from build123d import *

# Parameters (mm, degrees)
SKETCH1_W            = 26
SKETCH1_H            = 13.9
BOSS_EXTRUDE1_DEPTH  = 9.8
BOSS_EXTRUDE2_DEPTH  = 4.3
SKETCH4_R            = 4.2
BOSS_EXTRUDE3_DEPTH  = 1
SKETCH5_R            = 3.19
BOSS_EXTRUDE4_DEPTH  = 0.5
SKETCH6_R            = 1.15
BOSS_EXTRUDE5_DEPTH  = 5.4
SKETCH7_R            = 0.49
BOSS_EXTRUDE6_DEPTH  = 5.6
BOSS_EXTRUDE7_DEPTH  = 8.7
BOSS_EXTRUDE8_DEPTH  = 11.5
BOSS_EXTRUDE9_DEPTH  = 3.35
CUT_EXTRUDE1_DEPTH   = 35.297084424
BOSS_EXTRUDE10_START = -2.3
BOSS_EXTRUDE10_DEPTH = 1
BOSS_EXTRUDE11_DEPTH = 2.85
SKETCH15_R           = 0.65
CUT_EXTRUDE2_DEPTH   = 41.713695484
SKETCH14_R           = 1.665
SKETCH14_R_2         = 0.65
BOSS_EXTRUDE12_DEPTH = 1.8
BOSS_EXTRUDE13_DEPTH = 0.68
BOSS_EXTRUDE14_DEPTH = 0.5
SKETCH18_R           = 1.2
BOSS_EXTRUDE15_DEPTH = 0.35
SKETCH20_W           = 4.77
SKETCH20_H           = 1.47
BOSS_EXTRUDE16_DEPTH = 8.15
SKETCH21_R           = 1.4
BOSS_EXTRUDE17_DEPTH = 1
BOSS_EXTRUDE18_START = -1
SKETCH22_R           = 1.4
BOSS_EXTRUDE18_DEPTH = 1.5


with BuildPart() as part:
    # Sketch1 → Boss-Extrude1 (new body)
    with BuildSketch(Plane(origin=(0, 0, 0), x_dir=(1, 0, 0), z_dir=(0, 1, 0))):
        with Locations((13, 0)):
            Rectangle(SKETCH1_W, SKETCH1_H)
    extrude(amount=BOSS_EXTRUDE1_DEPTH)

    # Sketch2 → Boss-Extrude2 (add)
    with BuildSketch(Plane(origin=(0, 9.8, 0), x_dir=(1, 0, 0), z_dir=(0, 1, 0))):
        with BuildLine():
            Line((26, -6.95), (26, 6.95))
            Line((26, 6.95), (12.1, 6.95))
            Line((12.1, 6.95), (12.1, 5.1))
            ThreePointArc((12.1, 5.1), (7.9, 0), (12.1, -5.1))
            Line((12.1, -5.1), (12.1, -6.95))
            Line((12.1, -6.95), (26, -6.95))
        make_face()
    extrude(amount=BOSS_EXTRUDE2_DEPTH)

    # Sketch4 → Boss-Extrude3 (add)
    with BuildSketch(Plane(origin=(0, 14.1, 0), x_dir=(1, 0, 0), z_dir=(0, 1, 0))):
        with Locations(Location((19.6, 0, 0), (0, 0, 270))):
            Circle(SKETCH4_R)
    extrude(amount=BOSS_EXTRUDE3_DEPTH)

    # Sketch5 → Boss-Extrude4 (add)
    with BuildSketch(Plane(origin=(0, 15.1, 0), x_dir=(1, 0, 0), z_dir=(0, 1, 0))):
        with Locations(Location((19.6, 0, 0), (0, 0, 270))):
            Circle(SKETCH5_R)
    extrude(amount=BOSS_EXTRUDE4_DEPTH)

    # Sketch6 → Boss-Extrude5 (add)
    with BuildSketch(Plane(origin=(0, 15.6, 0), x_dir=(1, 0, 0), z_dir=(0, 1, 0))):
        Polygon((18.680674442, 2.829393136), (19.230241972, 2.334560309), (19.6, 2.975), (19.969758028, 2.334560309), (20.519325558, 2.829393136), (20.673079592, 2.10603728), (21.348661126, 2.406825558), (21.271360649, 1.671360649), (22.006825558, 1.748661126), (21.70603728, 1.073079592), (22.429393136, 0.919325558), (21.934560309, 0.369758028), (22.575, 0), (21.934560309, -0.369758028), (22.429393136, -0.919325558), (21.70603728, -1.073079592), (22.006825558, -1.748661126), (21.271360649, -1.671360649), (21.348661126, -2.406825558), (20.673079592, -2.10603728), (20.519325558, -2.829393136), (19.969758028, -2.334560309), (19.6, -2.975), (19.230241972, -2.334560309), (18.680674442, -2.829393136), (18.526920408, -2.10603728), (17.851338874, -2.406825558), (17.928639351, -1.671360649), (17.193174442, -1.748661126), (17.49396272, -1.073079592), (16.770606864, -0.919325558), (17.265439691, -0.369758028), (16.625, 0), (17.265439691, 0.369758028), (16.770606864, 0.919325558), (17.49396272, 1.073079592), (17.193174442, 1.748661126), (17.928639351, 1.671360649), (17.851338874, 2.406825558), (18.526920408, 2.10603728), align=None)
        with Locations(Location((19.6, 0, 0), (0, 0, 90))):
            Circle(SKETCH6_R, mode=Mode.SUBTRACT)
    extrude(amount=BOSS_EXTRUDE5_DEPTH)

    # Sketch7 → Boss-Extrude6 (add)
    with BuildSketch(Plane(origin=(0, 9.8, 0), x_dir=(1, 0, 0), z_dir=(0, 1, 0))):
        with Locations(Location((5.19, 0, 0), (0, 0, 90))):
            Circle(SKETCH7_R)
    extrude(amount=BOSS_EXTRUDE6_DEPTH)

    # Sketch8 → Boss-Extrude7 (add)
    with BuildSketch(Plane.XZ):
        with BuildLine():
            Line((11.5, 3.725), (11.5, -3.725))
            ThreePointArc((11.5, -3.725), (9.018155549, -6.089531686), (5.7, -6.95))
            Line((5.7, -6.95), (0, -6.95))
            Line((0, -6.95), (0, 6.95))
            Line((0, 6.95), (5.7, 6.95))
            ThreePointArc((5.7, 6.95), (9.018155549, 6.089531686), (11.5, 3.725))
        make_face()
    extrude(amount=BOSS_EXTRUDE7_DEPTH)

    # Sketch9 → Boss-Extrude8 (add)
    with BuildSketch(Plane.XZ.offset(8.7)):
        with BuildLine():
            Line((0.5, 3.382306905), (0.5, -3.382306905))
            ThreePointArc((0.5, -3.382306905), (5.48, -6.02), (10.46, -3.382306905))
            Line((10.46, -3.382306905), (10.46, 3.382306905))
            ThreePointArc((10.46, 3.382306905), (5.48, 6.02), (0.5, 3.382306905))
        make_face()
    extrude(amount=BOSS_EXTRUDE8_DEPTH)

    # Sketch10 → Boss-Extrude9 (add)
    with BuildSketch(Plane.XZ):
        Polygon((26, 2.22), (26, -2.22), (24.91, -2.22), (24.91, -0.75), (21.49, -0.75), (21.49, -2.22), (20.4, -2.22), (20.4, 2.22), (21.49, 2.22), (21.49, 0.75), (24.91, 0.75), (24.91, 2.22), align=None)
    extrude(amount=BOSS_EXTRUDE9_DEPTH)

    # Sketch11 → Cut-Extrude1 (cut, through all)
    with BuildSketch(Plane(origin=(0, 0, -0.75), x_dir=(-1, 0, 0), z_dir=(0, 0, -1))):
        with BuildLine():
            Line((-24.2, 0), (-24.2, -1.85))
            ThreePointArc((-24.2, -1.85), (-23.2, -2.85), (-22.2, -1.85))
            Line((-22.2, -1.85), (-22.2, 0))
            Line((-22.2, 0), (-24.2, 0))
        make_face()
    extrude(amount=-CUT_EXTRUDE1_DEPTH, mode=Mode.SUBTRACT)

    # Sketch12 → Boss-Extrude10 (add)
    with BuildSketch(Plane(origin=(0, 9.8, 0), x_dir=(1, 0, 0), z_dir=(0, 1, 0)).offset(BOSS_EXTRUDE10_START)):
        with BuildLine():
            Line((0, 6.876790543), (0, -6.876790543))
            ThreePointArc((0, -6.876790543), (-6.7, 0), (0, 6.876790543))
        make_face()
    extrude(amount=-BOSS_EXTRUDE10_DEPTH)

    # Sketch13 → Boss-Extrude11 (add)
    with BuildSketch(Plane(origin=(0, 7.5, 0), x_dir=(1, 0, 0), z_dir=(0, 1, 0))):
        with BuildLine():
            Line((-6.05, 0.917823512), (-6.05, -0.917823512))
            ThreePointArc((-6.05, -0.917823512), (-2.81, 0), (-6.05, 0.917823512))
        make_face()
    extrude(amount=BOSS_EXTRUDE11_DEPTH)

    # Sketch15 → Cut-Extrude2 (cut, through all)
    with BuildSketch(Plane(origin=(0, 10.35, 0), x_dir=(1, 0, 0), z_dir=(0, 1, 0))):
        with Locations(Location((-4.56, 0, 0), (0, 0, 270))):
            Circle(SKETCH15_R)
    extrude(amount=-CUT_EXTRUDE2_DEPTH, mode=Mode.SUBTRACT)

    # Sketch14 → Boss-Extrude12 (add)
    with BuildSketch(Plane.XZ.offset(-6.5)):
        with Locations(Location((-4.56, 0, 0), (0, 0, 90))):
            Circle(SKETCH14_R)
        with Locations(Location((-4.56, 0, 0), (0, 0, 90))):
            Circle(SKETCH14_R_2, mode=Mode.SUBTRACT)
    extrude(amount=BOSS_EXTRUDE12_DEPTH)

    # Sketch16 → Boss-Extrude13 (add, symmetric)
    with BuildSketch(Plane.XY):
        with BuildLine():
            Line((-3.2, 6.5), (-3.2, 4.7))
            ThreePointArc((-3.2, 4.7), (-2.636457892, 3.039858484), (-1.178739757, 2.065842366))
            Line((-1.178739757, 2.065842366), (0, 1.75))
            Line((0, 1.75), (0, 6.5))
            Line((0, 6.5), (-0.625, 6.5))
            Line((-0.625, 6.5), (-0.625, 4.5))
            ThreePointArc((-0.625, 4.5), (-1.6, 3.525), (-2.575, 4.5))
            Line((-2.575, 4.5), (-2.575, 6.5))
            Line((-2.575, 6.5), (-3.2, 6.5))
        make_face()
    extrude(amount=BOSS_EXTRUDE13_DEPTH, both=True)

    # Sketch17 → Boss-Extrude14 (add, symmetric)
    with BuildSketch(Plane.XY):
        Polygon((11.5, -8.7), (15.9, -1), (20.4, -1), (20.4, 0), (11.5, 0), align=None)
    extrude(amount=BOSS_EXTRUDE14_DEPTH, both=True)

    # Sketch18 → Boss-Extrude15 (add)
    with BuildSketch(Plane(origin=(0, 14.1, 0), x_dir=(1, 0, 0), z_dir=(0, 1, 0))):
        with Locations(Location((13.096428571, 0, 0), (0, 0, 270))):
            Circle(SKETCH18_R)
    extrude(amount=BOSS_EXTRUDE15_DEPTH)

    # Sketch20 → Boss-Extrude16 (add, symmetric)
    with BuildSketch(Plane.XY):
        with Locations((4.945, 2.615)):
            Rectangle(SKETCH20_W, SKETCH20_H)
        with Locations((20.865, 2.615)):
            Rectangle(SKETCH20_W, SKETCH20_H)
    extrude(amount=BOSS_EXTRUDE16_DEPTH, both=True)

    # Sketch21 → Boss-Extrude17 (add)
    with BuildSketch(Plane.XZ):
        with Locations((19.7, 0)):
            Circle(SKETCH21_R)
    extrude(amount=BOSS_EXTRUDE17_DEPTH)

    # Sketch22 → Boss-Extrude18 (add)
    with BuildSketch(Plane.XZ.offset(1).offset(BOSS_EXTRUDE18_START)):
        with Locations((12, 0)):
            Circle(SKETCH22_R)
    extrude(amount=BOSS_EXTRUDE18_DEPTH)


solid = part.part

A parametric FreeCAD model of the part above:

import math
import FreeCAD as App
import Part
import Sketcher
Q = App.Units.Quantity


def add_polygon(sketch, points):
    """Adds a closed chain of lines whose ends are joined by coincident constraints."""
    first, n = sketch.GeometryCount, len(points)
    for a, b in zip(points, points[1:] + points[:1]):
        sketch.addGeometry(Part.LineSegment(App.Vector(*a, 0), App.Vector(*b, 0)), False)
    for i in range(n):
        sketch.addConstraint(Sketcher.Constraint("Coincident", first + i, 2, first + (i + 1) % n, 1))

doc = App.newDocument("Part")
body = doc.addObject("PartDesign::Body", "Body")

# Sketch on XZ plane
sketch1 = doc.addObject("Sketcher::SketchObject", "Sketch")
body.addObject(sketch1)
sketch1.AttachmentSupport = (doc.XZ_Plane, [""])
sketch1.MapMode = "FlatFace"
add_polygon(sketch1, [(0, -6.95), (0, 6.95), (26, 6.95), (26, -6.95)])  # lines 0-3
sketch1.addConstraint([
    Sketcher.Constraint("Vertical", 0),
    Sketcher.Constraint("Horizontal", 1),
    Sketcher.Constraint("Vertical", 2),
    Sketcher.Constraint("Horizontal", 3),
    Sketcher.Constraint("Symmetric", 0, 2, 3, 2, -1, 1),
    Sketcher.Constraint("DistanceX", 1, 1, 1, 2, Q("26 mm")),
    Sketcher.Constraint("DistanceY", 0, 1, 0, 2, Q("13.9 mm")),
])
pad1 = doc.addObject("PartDesign::Pad", "Pad")
body.addObject(pad1)
pad1.Profile = sketch1
pad1.Length = 9.8
pad1.Reversed = True

# Sketch on XZ plane
sketch2 = doc.addObject("Sketcher::SketchObject", "Sketch001")
body.addObject(sketch2)
sketch2.AttachmentSupport = (doc.XZ_Plane, [""])
sketch2.MapMode = "FlatFace"
sketch2.AttachmentOffset = App.Placement(App.Vector(0, 0, -9.8), App.Rotation())
sketch2.addGeometry([
    Part.LineSegment(App.Vector(26, 6.95, 0), App.Vector(26, -6.95, 0)),  # 0
    Part.LineSegment(App.Vector(26, -6.95, 0), App.Vector(12.1, -6.95, 0)),  # 1
    Part.LineSegment(App.Vector(12.1, -6.95, 0), App.Vector(12.1, -5.1, 0)),  # 2
    Part.ArcOfCircle(Part.Circle(App.Vector(13.096429, 0, 0), App.Vector(0, 0, 1), 5.196429), math.radians(101.05508), math.radians(258.94492)),  # 3
    Part.LineSegment(App.Vector(12.1, 5.1, 0), App.Vector(12.1, 6.95, 0)),  # 4
    Part.LineSegment(App.Vector(12.1, 6.95, 0), App.Vector(26, 6.95, 0)),  # 5
], False)
sketch2.addConstraint([
    Sketcher.Constraint("Coincident", 0, 2, 1, 1),
    Sketcher.Constraint("Coincident", 1, 2, 2, 1),
    Sketcher.Constraint("Coincident", 2, 2, 3, 2),
    Sketcher.Constraint("Coincident", 3, 1, 4, 1),
    Sketcher.Constraint("Coincident", 4, 2, 5, 1),
    Sketcher.Constraint("Coincident", 5, 2, 0, 1),
    Sketcher.Constraint("Vertical", 0),
    Sketcher.Constraint("Horizontal", 1),
    Sketcher.Constraint("Vertical", 2),
    Sketcher.Constraint("Vertical", 4),
    Sketcher.Constraint("Horizontal", 5),
    Sketcher.Constraint("Symmetric", 2, 2, 3, 1, -1),
    Sketcher.Constraint("Equal", 5, 0),
    Sketcher.Constraint("Equal", 2, 4),
    Sketcher.Constraint("DistanceX", 1, 2, 1, 1, Q("13.9 mm")),
    Sketcher.Constraint("DistanceX", -1, 1, 0, 2, Q("26 mm")),
    Sketcher.Constraint("DistanceY", 2, 1, 2, 2, Q("1.85 mm")),
    Sketcher.Constraint("Radius", 3, Q("5.196429 mm")),
])
pad2 = doc.addObject("PartDesign::Pad", "Pad001")
body.addObject(pad2)
pad2.Profile = sketch2
pad2.Length = 4.3
pad2.Reversed = True

# Sketch on XZ plane
sketch3 = doc.addObject("Sketcher::SketchObject", "Sketch002")
body.addObject(sketch3)
sketch3.AttachmentSupport = (doc.XZ_Plane, [""])
sketch3.MapMode = "FlatFace"
sketch3.AttachmentOffset = App.Placement(App.Vector(0, 0, -14.1), App.Rotation())
sketch3.addGeometry(Part.Circle(App.Vector(19.6, 0, 0), App.Vector(0, 0, 1), 4.2), False)
sketch3.addConstraint([
    Sketcher.Constraint("PointOnObject", 0, 3, -1),
    Sketcher.Constraint("Diameter", 0, Q("8.4 mm")),
    Sketcher.Constraint("DistanceX", -1, 1, 0, 3, Q("19.6 mm")),
])
pad3 = doc.addObject("PartDesign::Pad", "Pad002")
body.addObject(pad3)
pad3.Profile = sketch3
pad3.Length = 1
pad3.Reversed = True

# Sketch on XZ plane
sketch4 = doc.addObject("Sketcher::SketchObject", "Sketch003")
body.addObject(sketch4)
sketch4.AttachmentSupport = (doc.XZ_Plane, [""])
sketch4.MapMode = "FlatFace"
sketch4.AttachmentOffset = App.Placement(App.Vector(0, 0, -15.1), App.Rotation())
sketch4.addGeometry(Part.Circle(App.Vector(19.6, 0, 0), App.Vector(0, 0, 1), 3.19), False)
sketch4.addConstraint([
    Sketcher.Constraint("PointOnObject", 0, 3, -1),
    Sketcher.Constraint("Diameter", 0, Q("6.38 mm")),
    Sketcher.Constraint("DistanceX", -1, 1, 0, 3, Q("19.6 mm")),
])
pad4 = doc.addObject("PartDesign::Pad", "Pad003")
body.addObject(pad4)
pad4.Profile = sketch4
pad4.Length = 0.5
pad4.Reversed = True

# Sketch on XZ plane
sketch5 = doc.addObject("Sketcher::SketchObject", "Sketch004")
body.addObject(sketch5)
sketch5.AttachmentSupport = (doc.XZ_Plane, [""])
sketch5.MapMode = "FlatFace"
sketch5.AttachmentOffset = App.Placement(App.Vector(0, 0, -15.6), App.Rotation())
add_polygon(sketch5, [(19.230242, -2.33456), (18.680674, -2.829393), (18.52692, -2.106037), (17.851339, -2.406826), (17.928639, -1.671361), (17.193174, -1.748661), (17.493963, -1.07308), (16.770607, -0.919326), (17.26544, -0.369758), (16.625, 0), (17.26544, 0.369758), (16.770607, 0.919326), (17.493963, 1.07308), (17.193174, 1.748661), (17.928639, 1.671361), (17.851339, 2.406826), (18.52692, 2.106037), (18.680674, 2.829393), (19.230242, 2.33456), (19.6, 2.975), (19.969758, 2.33456), (20.519326, 2.829393), (20.67308, 2.106037), (21.348661, 2.406826), (21.271361, 1.671361), (22.006826, 1.748661), (21.706037, 1.07308), (22.429393, 0.919326), (21.93456, 0.369758), (22.575, 0), (21.93456, -0.369758), (22.429393, -0.919326), (21.706037, -1.07308), (22.006826, -1.748661), (21.271361, -1.671361), (21.348661, -2.406826), (20.67308, -2.106037), (20.519326, -2.829393), (19.969758, -2.33456), (19.6, -2.975)])  # lines 0-39
sketch5.addGeometry(Part.Circle(App.Vector(19.6, 0, 0), App.Vector(0, 0, 1), 1.15), False)  # 40
sketch5.addConstraint([
    Sketcher.Constraint("Symmetric", 7, 2, 9, 2, -1),
    Sketcher.Constraint("Symmetric", 6, 2, 10, 2, -1),
    Sketcher.Constraint("Symmetric", 5, 2, 11, 2, -1),
    Sketcher.Constraint("Symmetric", 4, 2, 12, 2, -1),
    Sketcher.Constraint("Symmetric", 3, 2, 13, 2, -1),
    Sketcher.Constraint("Symmetric", 2, 2, 14, 2, -1),
    Sketcher.Constraint("Symmetric", 1, 2, 15, 2, -1),
    Sketcher.Constraint("Symmetric", 0, 2, 16, 2, -1),
    Sketcher.Constraint("Symmetric", 27, 2, 29, 2, -1),
    Sketcher.Constraint("Symmetric", 26, 2, 30, 2, -1),
    Sketcher.Constraint("Symmetric", 25, 2, 31, 2, -1),
    Sketcher.Constraint("Symmetric", 24, 2, 32, 2, -1),
    Sketcher.Constraint("Symmetric", 23, 2, 33, 2, -1),
    Sketcher.Constraint("Symmetric", 22, 2, 34, 2, -1),
    Sketcher.Constraint("Symmetric", 21, 2, 35, 2, -1),
    Sketcher.Constraint("Symmetric", 20, 2, 36, 2, -1),
    Sketcher.Constraint("Symmetric", 19, 2, 37, 2, -1),
    Sketcher.Constraint("Symmetric", 18, 2, 38, 2, -1),
    Sketcher.Constraint("Symmetric", 17, 2, 39, 2, -1),
    Sketcher.Constraint("PointOnObject", 40, 3, -1),
    Sketcher.Constraint("PointOnObject", 8, 2, -1),
    Sketcher.Constraint("PointOnObject", 28, 2, -1),
    Sketcher.Constraint("Perpendicular", 0, 10),
    Sketcher.Constraint("Perpendicular", 1, 11),
    Sketcher.Constraint("Perpendicular", 2, 12),
    Sketcher.Constraint("Perpendicular", 3, 13),
    Sketcher.Constraint("Perpendicular", 8, 18),
    Sketcher.Constraint("Perpendicular", 9, 19),
    Sketcher.Constraint("Perpendicular", 10, 20),
    Sketcher.Constraint("Perpendicular", 11, 21),
    Sketcher.Constraint("Perpendicular", 12, 22),
    Sketcher.Constraint("Perpendicular", 13, 23),
    Sketcher.Constraint("Perpendicular", 14, 24),
    Sketcher.Constraint("Perpendicular", 15, 25),
    Sketcher.Constraint("Perpendicular", 16, 26),
    Sketcher.Constraint("Perpendicular", 17, 27),
    Sketcher.Constraint("Perpendicular", 18, 28),
    Sketcher.Constraint("Horizontal", 17, 2, 19, 2),
    Sketcher.Constraint("Horizontal", 16, 2, 20, 2),
    Sketcher.Constraint("Horizontal", 15, 2, 21, 2),
    Sketcher.Constraint("Horizontal", 14, 2, 22, 2),
    Sketcher.Constraint("Horizontal", 13, 2, 23, 2),
    Sketcher.Constraint("Horizontal", 12, 2, 24, 2),
    Sketcher.Constraint("Horizontal", 11, 2, 25, 2),
    Sketcher.Constraint("Horizontal", 10, 2, 26, 2),
    Sketcher.Constraint("Horizontal", 9, 2, 27, 2),
    Sketcher.Constraint("Vertical", 40, 3, 18, 2),
    Sketcher.Constraint("Equal", 0, 1),
    Sketcher.Constraint("Equal", 1, 2),
    Sketcher.Constraint("Equal", 2, 3),
    Sketcher.Constraint("Equal", 3, 4),
    Sketcher.Constraint("Equal", 4, 5),
    Sketcher.Constraint("Equal", 5, 6),
    Sketcher.Constraint("Equal", 6, 7),
    Sketcher.Constraint("Equal", 7, 8),
    Sketcher.Constraint("Equal", 17, 18),
    Sketcher.Constraint("Diameter", 40, Q("2.3 mm")),
    Sketcher.Constraint("Angle", 0, Q("-138 deg")),
    Sketcher.Constraint("Angle", 1, Q("102 deg")),
    Sketcher.Constraint("Angle", 2, Q("-156 deg")),
    Sketcher.Constraint("Angle", 3, Q("84 deg")),
    Sketcher.Constraint("Angle", 8, Q("150 deg")),
    Sketcher.Constraint("DistanceX", -1, 1, 40, 3, Q("19.6 mm")),
    Sketcher.Constraint("DistanceX", -1, 1, 8, 2, Q("16.625 mm")),
])
pad5 = doc.addObject("PartDesign::Pad", "Pad004")
body.addObject(pad5)
pad5.Profile = sketch5
pad5.Length = 5.4
pad5.Reversed = True

# Sketch on XZ plane
sketch6 = doc.addObject("Sketcher::SketchObject", "Sketch005")
body.addObject(sketch6)
sketch6.AttachmentSupport = (doc.XZ_Plane, [""])
sketch6.MapMode = "FlatFace"
sketch6.AttachmentOffset = App.Placement(App.Vector(0, 0, -9.8), App.Rotation())
sketch6.addGeometry(Part.Circle(App.Vector(5.19, 0, 0), App.Vector(0, 0, 1), 0.49), False)
sketch6.addConstraint([
    Sketcher.Constraint("PointOnObject", 0, 3, -1),
    Sketcher.Constraint("Diameter", 0, Q("0.98 mm")),
    Sketcher.Constraint("DistanceX", -1, 1, 0, 3, Q("5.19 mm")),
])
pad6 = doc.addObject("PartDesign::Pad", "Pad005")
body.addObject(pad6)
pad6.Profile = sketch6
pad6.Length = 5.6
pad6.Reversed = True

# Sketch on XZ plane
sketch7 = doc.addObject("Sketcher::SketchObject", "Sketch006")
body.addObject(sketch7)
sketch7.AttachmentSupport = (doc.XZ_Plane, [""])
sketch7.MapMode = "FlatFace"
sketch7.addGeometry([
    Part.LineSegment(App.Vector(11.5, -3.725, 0), App.Vector(11.5, 3.725, 0)),  # 0
    Part.ArcOfCircle(Part.Circle(App.Vector(5.7, 0.121996, 0), App.Vector(0, 0, 1), 6.828004), math.radians(31.848863), math.radians(90)),  # 1
    Part.LineSegment(App.Vector(5.7, 6.95, 0), App.Vector(0, 6.95, 0)),  # 2
    Part.LineSegment(App.Vector(0, 6.95, 0), App.Vector(0, -6.95, 0)),  # 3
    Part.LineSegment(App.Vector(0, -6.95, 0), App.Vector(5.7, -6.95, 0)),  # 4
    Part.ArcOfCircle(Part.Circle(App.Vector(5.7, -0.121996, 0), App.Vector(0, 0, 1), 6.828004), math.radians(-90), math.radians(-31.848863)),  # 5
], False)
sketch7.addConstraint([
    Sketcher.Constraint("Coincident", 0, 2, 1, 1),
    Sketcher.Constraint("Tangent", 1, 2, 2, 1),
    Sketcher.Constraint("Coincident", 2, 2, 3, 1),
    Sketcher.Constraint("Coincident", 3, 2, 4, 1),
    Sketcher.Constraint("Tangent", 4, 2, 5, 1),
    Sketcher.Constraint("Coincident", 5, 2, 0, 1),
    Sketcher.Constraint("Vertical", 0),
    Sketcher.Constraint("Horizontal", 2),
    Sketcher.Constraint("Vertical", 3),
    Sketcher.Constraint("Horizontal", 4),
    Sketcher.Constraint("Equal", 1, 5),
    Sketcher.Constraint("Symmetric", 2, 2, 3, 2, -1, 1),
    Sketcher.Constraint("Vertical", 1, 3, 5, 3),
    Sketcher.Constraint("DistanceX", 2, 2, 2, 1, Q("5.7 mm")),
    Sketcher.Constraint("DistanceY", 3, 2, 3, 1, Q("13.9 mm")),
    Sketcher.Constraint("DistanceY", 0, 1, 0, 2, Q("7.45 mm")),
    Sketcher.Constraint("DistanceX", -1, 1, 0, 2, Q("11.5 mm")),
])
pad7 = doc.addObject("PartDesign::Pad", "Pad006")
body.addObject(pad7)
pad7.Profile = sketch7
pad7.Length = 8.7

# Sketch on XZ plane
sketch8 = doc.addObject("Sketcher::SketchObject", "Sketch007")
body.addObject(sketch8)
sketch8.AttachmentSupport = (doc.XZ_Plane, [""])
sketch8.MapMode = "FlatFace"
sketch8.AttachmentOffset = App.Placement(App.Vector(0, 0, 8.7), App.Rotation())
sketch8.addGeometry([
    Part.LineSegment(App.Vector(0.5, 3.382307, 0), App.Vector(0.5, -3.382307, 0)),
    Part.ArcOfCircle(Part.Circle(App.Vector(5.48, 0, 0), App.Vector(0, 0, 1), 6.02), math.radians(-145.816512), math.radians(-34.183488)),
    Part.LineSegment(App.Vector(10.46, -3.382307, 0), App.Vector(10.46, 3.382307, 0)),
    Part.ArcOfCircle(Part.Circle(App.Vector(5.48, 0, 0), App.Vector(0, 0, 1), 6.02), math.radians(34.183488), math.radians(145.816512)),
], False)
sketch8.addConstraint([
    Sketcher.Constraint("Coincident", 0, 2, 1, 1),
    Sketcher.Constraint("Coincident", 1, 2, 2, 1),
    Sketcher.Constraint("Coincident", 2, 2, 3, 1),
    Sketcher.Constraint("Coincident", 3, 2, 0, 1),
    Sketcher.Constraint("Vertical", 0),
    Sketcher.Constraint("Vertical", 2),
    Sketcher.Constraint("Coincident", 3, 3, 1, 3),
    Sketcher.Constraint("Equal", 1, 3),
    Sketcher.Constraint("PointOnObject", 1, 3, -1),
    Sketcher.Constraint("Horizontal", 0, 2, 1, 2),
    Sketcher.Constraint("Radius", 1, Q("6.02 mm")),
    Sketcher.Constraint("DistanceX", -1, 1, 0, 2, Q("0.5 mm")),
    Sketcher.Constraint("DistanceX", -1, 1, 1, 3, Q("5.48 mm")),
])
pad8 = doc.addObject("PartDesign::Pad", "Pad007")
body.addObject(pad8)
pad8.Profile = sketch8
pad8.Length = 11.5

# Sketch on XZ plane
sketch9 = doc.addObject("Sketcher::SketchObject", "Sketch008")
body.addObject(sketch9)
sketch9.AttachmentSupport = (doc.XZ_Plane, [""])
sketch9.MapMode = "FlatFace"
add_polygon(sketch9, [(26, -2.22), (26, 2.22), (24.91, 2.22), (24.91, 0.75), (21.49, 0.75), (21.49, 2.22), (20.4, 2.22), (20.4, -2.22), (21.49, -2.22), (21.49, -0.75), (24.91, -0.75), (24.91, -2.22)])  # lines 0-11
sketch9.addConstraint([
    Sketcher.Constraint("Vertical", 0),
    Sketcher.Constraint("Horizontal", 1),
    Sketcher.Constraint("Vertical", 2),
    Sketcher.Constraint("Horizontal", 3),
    Sketcher.Constraint("Vertical", 4),
    Sketcher.Constraint("Horizontal", 5),
    Sketcher.Constraint("Vertical", 6),
    Sketcher.Constraint("Horizontal", 7),
    Sketcher.Constraint("Vertical", 8),
    Sketcher.Constraint("Horizontal", 9),
    Sketcher.Constraint("Vertical", 10),
    Sketcher.Constraint("Horizontal", 11),
    Sketcher.Constraint("Symmetric", 4, 2, 7, 2, -1),
    Sketcher.Constraint("Symmetric", 2, 2, 9, 2, -1),
    Sketcher.Constraint("Horizontal", 1, 2, 4, 2),
    Sketcher.Constraint("Horizontal", 7, 2, 10, 2),
    Sketcher.Constraint("Equal", 1, 5),
    Sketcher.Constraint("DistanceX", -1, 1, 0, 2, Q("26 mm")),
    Sketcher.Constraint("DistanceX", 1, 2, 1, 1, Q("1.09 mm")),
    Sketcher.Constraint("DistanceX", 3, 2, 3, 1, Q("3.42 mm")),
    Sketcher.Constraint("DistanceY", 0, 1, 0, 2, Q("4.44 mm")),
    Sketcher.Constraint("DistanceY", 2, 2, 2, 1, Q("1.47 mm")),
])
pad9 = doc.addObject("PartDesign::Pad", "Pad008")
body.addObject(pad9)
pad9.Profile = sketch9
pad9.Length = 3.35

# Sketch on XY plane
sketch10 = doc.addObject("Sketcher::SketchObject", "Sketch009")
body.addObject(sketch10)
sketch10.AttachmentSupport = (doc.XY_Plane, [""])
sketch10.MapMode = "FlatFace"
sketch10.AttachmentOffset = App.Placement(App.Vector(0, 0, -0.75), App.Rotation())
sketch10.addGeometry([
    Part.LineSegment(App.Vector(24.2, 0, 0), App.Vector(24.2, -1.85, 0)),
    Part.ArcOfCircle(Part.Circle(App.Vector(23.2, -1.85, 0), App.Vector(0, 0, 1), 1), math.radians(180), math.radians(360)),
    Part.LineSegment(App.Vector(22.2, -1.85, 0), App.Vector(22.2, 0, 0)),
    Part.LineSegment(App.Vector(22.2, 0, 0), App.Vector(24.2, 0, 0)),
], False)
sketch10.addConstraint([
    Sketcher.Constraint("Tangent", 0, 2, 1, 2),
    Sketcher.Constraint("Tangent", 1, 1, 2, 1),
    Sketcher.Constraint("Coincident", 2, 2, 3, 1),
    Sketcher.Constraint("Coincident", 3, 2, 0, 1),
    Sketcher.Constraint("Vertical", 0),
    Sketcher.Constraint("Vertical", 2),
    Sketcher.Constraint("Horizontal", 3),
    Sketcher.Constraint("PointOnObject", 2, 2, -1),
    Sketcher.Constraint("Radius", 1, Q("1 mm")),
    Sketcher.Constraint("DistanceY", 0, 2, 0, 1, Q("1.85 mm")),
    Sketcher.Constraint("DistanceX", -1, 1, 1, 3, Q("23.2 mm")),
])
pocket1 = doc.addObject("PartDesign::Pocket", "Pocket")
body.addObject(pocket1)
pocket1.Profile = sketch10
pocket1.Type = "ThroughAll"
pocket1.Reversed = True

# Sketch on XZ plane
sketch11 = doc.addObject("Sketcher::SketchObject", "Sketch010")
body.addObject(sketch11)
sketch11.AttachmentSupport = (doc.XZ_Plane, [""])
sketch11.MapMode = "FlatFace"
sketch11.AttachmentOffset = App.Placement(App.Vector(0, 0, -7.5), App.Rotation())
sketch11.addGeometry([
    Part.LineSegment(App.Vector(0, 6.876791, 0), App.Vector(0, -6.876791, 0)),
    Part.ArcOfCircle(Part.Circle(App.Vector(0.179123, 0, 0), App.Vector(0, 0, 1), 6.879123), math.radians(91.492073), math.radians(268.507927)),
], False)
sketch11.addConstraint([
    Sketcher.Constraint("Coincident", 0, 1, 1, 1),
    Sketcher.Constraint("Coincident", 1, 2, 0, 2),
    Sketcher.Constraint("Vertical", 0),
    Sketcher.Constraint("Symmetric", 0, 1, 1, 2, -1, 1),
    Sketcher.Constraint("Radius", 1, Q("6.879123 mm")),
    Sketcher.Constraint("DistanceY", 0, 2, 0, 1, Q("13.753581 mm")),
])
pad10 = doc.addObject("PartDesign::Pad", "Pad009")
body.addObject(pad10)
pad10.Profile = sketch11
pad10.Length = 1

# Sketch on XZ plane
sketch12 = doc.addObject("Sketcher::SketchObject", "Sketch011")
body.addObject(sketch12)
sketch12.AttachmentSupport = (doc.XZ_Plane, [""])
sketch12.MapMode = "FlatFace"
sketch12.AttachmentOffset = App.Placement(App.Vector(0, 0, -7.5), App.Rotation())
sketch12.addGeometry([
    Part.LineSegment(App.Vector(-6.05, -0.917824, 0), App.Vector(-6.05, 0.917824, 0)),
    Part.ArcOfCircle(Part.Circle(App.Vector(-4.56, 0, 0), App.Vector(0, 0, 1), 1.75), math.radians(-148.36739), math.radians(148.36739)),
], False)
sketch12.addConstraint([
    Sketcher.Constraint("Coincident", 0, 1, 1, 1),
    Sketcher.Constraint("Coincident", 1, 2, 0, 2),
    Sketcher.Constraint("Vertical", 0),
    Sketcher.Constraint("PointOnObject", 1, 3, -1),
    Sketcher.Constraint("Radius", 1, Q("1.75 mm")),
    Sketcher.Constraint("DistanceX", 1, 3, -1, 1, Q("4.56 mm")),
    Sketcher.Constraint("DistanceX", 0, 1, -1, 1, Q("6.05 mm")),
])
pad11 = doc.addObject("PartDesign::Pad", "Pad010")
body.addObject(pad11)
pad11.Profile = sketch12
pad11.Length = 2.85
pad11.Reversed = True

# Sketch on XZ plane
sketch13 = doc.addObject("Sketcher::SketchObject", "Sketch012")
body.addObject(sketch13)
sketch13.AttachmentSupport = (doc.XZ_Plane, [""])
sketch13.MapMode = "FlatFace"
sketch13.AttachmentOffset = App.Placement(App.Vector(0, 0, -10.35), App.Rotation())
sketch13.addGeometry(Part.Circle(App.Vector(-4.56, 0, 0), App.Vector(0, 0, 1), 0.65), False)
sketch13.addConstraint([
    Sketcher.Constraint("PointOnObject", 0, 3, -1),
    Sketcher.Constraint("Diameter", 0, Q("1.3 mm")),
    Sketcher.Constraint("DistanceX", 0, 3, -1, 1, Q("4.56 mm")),
])
pocket2 = doc.addObject("PartDesign::Pocket", "Pocket001")
body.addObject(pocket2)
pocket2.Profile = sketch13
pocket2.Type = "ThroughAll"
pocket2.Reversed = True

# Sketch on XZ plane
sketch14 = doc.addObject("Sketcher::SketchObject", "Sketch013")
body.addObject(sketch14)
sketch14.AttachmentSupport = (doc.XZ_Plane, [""])
sketch14.MapMode = "FlatFace"
sketch14.AttachmentOffset = App.Placement(App.Vector(0, 0, -6.5), App.Rotation())
sketch14.addGeometry([
    Part.Circle(App.Vector(-4.56, 0, 0), App.Vector(0, 0, 1), 1.665),
    Part.Circle(App.Vector(-4.56, 0, 0), App.Vector(0, 0, 1), 0.65),
], False)
sketch14.addConstraint([
    Sketcher.Constraint("Coincident", 1, 3, 0, 3),
    Sketcher.Constraint("PointOnObject", 0, 3, -1),
    Sketcher.Constraint("Diameter", 1, Q("1.3 mm")),
    Sketcher.Constraint("Diameter", 0, Q("3.33 mm")),
    Sketcher.Constraint("DistanceX", 0, 3, -1, 1, Q("4.56 mm")),
])
pad12 = doc.addObject("PartDesign::Pad", "Pad011")
body.addObject(pad12)
pad12.Profile = sketch14
pad12.Length = 1.8

# Sketch on XY plane
sketch15 = doc.addObject("Sketcher::SketchObject", "Sketch014")
body.addObject(sketch15)
sketch15.AttachmentSupport = (doc.XY_Plane, [""])
sketch15.MapMode = "FlatFace"
sketch15.addGeometry([
    Part.LineSegment(App.Vector(-3.2, 6.5, 0), App.Vector(-3.2, 4.7, 0)),  # 0
    Part.ArcOfCircle(Part.Circle(App.Vector(-0.472919, 4.7, 0), App.Vector(0, 0, 1), 2.727081), math.radians(180), math.radians(255)),  # 1
    Part.LineSegment(App.Vector(-1.17874, 2.065842, 0), App.Vector(0, 1.75, 0)),  # 2
    Part.LineSegment(App.Vector(0, 1.75, 0), App.Vector(0, 6.5, 0)),  # 3
    Part.LineSegment(App.Vector(0, 6.5, 0), App.Vector(-0.625, 6.5, 0)),  # 4
    Part.LineSegment(App.Vector(-0.625, 6.5, 0), App.Vector(-0.625, 4.5, 0)),  # 5
    Part.ArcOfCircle(Part.Circle(App.Vector(-1.6, 4.5, 0), App.Vector(0, 0, 1), 0.975), math.radians(180), math.radians(360)),  # 6
    Part.LineSegment(App.Vector(-2.575, 4.5, 0), App.Vector(-2.575, 6.5, 0)),  # 7
    Part.LineSegment(App.Vector(-2.575, 6.5, 0), App.Vector(-3.2, 6.5, 0)),  # 8
], False)
sketch15.addConstraint([
    Sketcher.Constraint("Tangent", 0, 2, 1, 1),
    Sketcher.Constraint("Tangent", 1, 2, 2, 1),
    Sketcher.Constraint("Coincident", 2, 2, 3, 1),
    Sketcher.Constraint("Coincident", 3, 2, 4, 1),
    Sketcher.Constraint("Coincident", 4, 2, 5, 1),
    Sketcher.Constraint("Tangent", 5, 2, 6, 2),
    Sketcher.Constraint("Tangent", 6, 1, 7, 1),
    Sketcher.Constraint("Coincident", 7, 2, 8, 1),
    Sketcher.Constraint("Coincident", 8, 2, 0, 1),
    Sketcher.Constraint("Vertical", 0),
    Sketcher.Constraint("Vertical", 3),
    Sketcher.Constraint("Horizontal", 4),
    Sketcher.Constraint("Vertical", 5),
    Sketcher.Constraint("Vertical", 7),
    Sketcher.Constraint("Horizontal", 8),
    Sketcher.Constraint("PointOnObject", 2, 2, -2),
    Sketcher.Constraint("Horizontal", 4, 2, 7, 2),
    Sketcher.Constraint("Equal", 4, 8),
    Sketcher.Constraint("DistanceY", 5, 2, 5, 1, Q("2 mm")),
    Sketcher.Constraint("Angle", 2, Q("-15 deg")),
    Sketcher.Constraint("DistanceY", 0, 2, 0, 1, Q("1.8 mm")),
    Sketcher.Constraint("Radius", 6, Q("0.975 mm")),
    Sketcher.Constraint("DistanceY", 3, 1, 3, 2, Q("4.75 mm")),
    Sketcher.Constraint("DistanceY", -1, 1, 1, 3, Q("4.7 mm")),
    Sketcher.Constraint("DistanceX", 6, 3, -1, 1, Q("1.6 mm")),
])
pad13 = doc.addObject("PartDesign::Pad", "Pad012")
body.addObject(pad13)
pad13.Profile = sketch15
pad13.Length = 1.36
pad13.Midplane = True

# Sketch on XY plane
sketch16 = doc.addObject("Sketcher::SketchObject", "Sketch015")
body.addObject(sketch16)
sketch16.AttachmentSupport = (doc.XY_Plane, [""])
sketch16.MapMode = "FlatFace"
add_polygon(sketch16, [(11.5, -8.7), (15.9, -1), (20.4, -1), (20.4, 0), (11.5, 0)])  # lines 0-4
sketch16.addConstraint([
    Sketcher.Constraint("Horizontal", 1),
    Sketcher.Constraint("Vertical", 2),
    Sketcher.Constraint("Horizontal", 3),
    Sketcher.Constraint("Vertical", 4),
    Sketcher.Constraint("PointOnObject", 2, 2, -1),
    Sketcher.Constraint("DistanceY", 2, 1, 2, 2, Q("1 mm")),
    Sketcher.Constraint("DistanceX", 1, 1, 1, 2, Q("4.5 mm")),
    Sketcher.Constraint("DistanceX", 3, 2, 3, 1, Q("8.9 mm")),
    Sketcher.Constraint("DistanceY", 4, 2, 4, 1, Q("8.7 mm")),
    Sketcher.Constraint("DistanceX", -1, 1, 0, 2, Q("15.9 mm")),
])
pad14 = doc.addObject("PartDesign::Pad", "Pad013")
body.addObject(pad14)
pad14.Profile = sketch16
pad14.Length = 1
pad14.Midplane = True

# Sketch on XZ plane
sketch17 = doc.addObject("Sketcher::SketchObject", "Sketch016")
body.addObject(sketch17)
sketch17.AttachmentSupport = (doc.XZ_Plane, [""])
sketch17.MapMode = "FlatFace"
sketch17.AttachmentOffset = App.Placement(App.Vector(0, 0, -14.1), App.Rotation())
sketch17.addGeometry(Part.Circle(App.Vector(13.096429, 0, 0), App.Vector(0, 0, 1), 1.2), False)
sketch17.addConstraint([
    Sketcher.Constraint("PointOnObject", 0, 3, -1),
    Sketcher.Constraint("Diameter", 0, Q("2.4 mm")),
    Sketcher.Constraint("DistanceX", -1, 1, 0, 3, Q("13.096429 mm")),
])
pad15 = doc.addObject("PartDesign::Pad", "Pad014")
body.addObject(pad15)
pad15.Profile = sketch17
pad15.Length = 0.35
pad15.Reversed = True

# Sketch on XY plane
sketch18 = doc.addObject("Sketcher::SketchObject", "Sketch017")
body.addObject(sketch18)
sketch18.AttachmentSupport = (doc.XY_Plane, [""])
sketch18.MapMode = "FlatFace"
add_polygon(sketch18, [(2.56, 3.35), (2.56, 1.88), (7.33, 1.88), (7.33, 3.35)])  # lines 0-3
add_polygon(sketch18, [(18.48, 3.35), (18.48, 1.88), (23.25, 1.88), (23.25, 3.35)])  # lines 4-7
sketch18.addConstraint([
    Sketcher.Constraint("Vertical", 0),
    Sketcher.Constraint("Horizontal", 1),
    Sketcher.Constraint("Vertical", 2),
    Sketcher.Constraint("Horizontal", 3),
    Sketcher.Constraint("Vertical", 4),
    Sketcher.Constraint("Horizontal", 5),
    Sketcher.Constraint("Vertical", 6),
    Sketcher.Constraint("Horizontal", 7),
    Sketcher.Constraint("Horizontal", 1, 2, 4, 2),
    Sketcher.Constraint("Horizontal", 3, 2, 6, 2),
    Sketcher.Constraint("Equal", 3, 5),
    Sketcher.Constraint("DistanceX", 1, 1, 1, 2, Q("4.77 mm")),
    Sketcher.Constraint("DistanceY", 0, 2, 0, 1, Q("1.47 mm")),
    Sketcher.Constraint("DistanceX", -1, 1, 0, 2, Q("2.56 mm")),
    Sketcher.Constraint("DistanceY", -1, 1, 0, 2, Q("1.88 mm")),
    Sketcher.Constraint("DistanceX", -1, 1, 4, 2, Q("18.48 mm")),
])
pad16 = doc.addObject("PartDesign::Pad", "Pad015")
body.addObject(pad16)
pad16.Profile = sketch18
pad16.Length = 16.3
pad16.Midplane = True

# Sketch on XZ plane
sketch19 = doc.addObject("Sketcher::SketchObject", "Sketch018")
body.addObject(sketch19)
sketch19.AttachmentSupport = (doc.XZ_Plane, [""])
sketch19.MapMode = "FlatFace"
sketch19.addGeometry(Part.Circle(App.Vector(19.7, 0, 0), App.Vector(0, 0, 1), 1.4), False)
sketch19.addConstraint([
    Sketcher.Constraint("PointOnObject", 0, 3, -1),
    Sketcher.Constraint("Diameter", 0, Q("2.8 mm")),
    Sketcher.Constraint("DistanceX", -1, 1, 0, 3, Q("19.7 mm")),
])
pad17 = doc.addObject("PartDesign::Pad", "Pad016")
body.addObject(pad17)
pad17.Profile = sketch19
pad17.Length = 1

# Sketch on XZ plane
sketch20 = doc.addObject("Sketcher::SketchObject", "Sketch019")
body.addObject(sketch20)
sketch20.AttachmentSupport = (doc.XZ_Plane, [""])
sketch20.MapMode = "FlatFace"
sketch20.addGeometry(Part.Circle(App.Vector(12, 0, 0), App.Vector(0, 0, 1), 1.4), False)
sketch20.addConstraint([
    Sketcher.Constraint("PointOnObject", 0, 3, -1),
    Sketcher.Constraint("Diameter", 0, Q("2.8 mm")),
    Sketcher.Constraint("DistanceX", -1, 1, 0, 3, Q("12 mm")),
])
pad18 = doc.addObject("PartDesign::Pad", "Pad017")
body.addObject(pad18)
pad18.Profile = sketch20
pad18.Length = 1.5

doc.recompute()
